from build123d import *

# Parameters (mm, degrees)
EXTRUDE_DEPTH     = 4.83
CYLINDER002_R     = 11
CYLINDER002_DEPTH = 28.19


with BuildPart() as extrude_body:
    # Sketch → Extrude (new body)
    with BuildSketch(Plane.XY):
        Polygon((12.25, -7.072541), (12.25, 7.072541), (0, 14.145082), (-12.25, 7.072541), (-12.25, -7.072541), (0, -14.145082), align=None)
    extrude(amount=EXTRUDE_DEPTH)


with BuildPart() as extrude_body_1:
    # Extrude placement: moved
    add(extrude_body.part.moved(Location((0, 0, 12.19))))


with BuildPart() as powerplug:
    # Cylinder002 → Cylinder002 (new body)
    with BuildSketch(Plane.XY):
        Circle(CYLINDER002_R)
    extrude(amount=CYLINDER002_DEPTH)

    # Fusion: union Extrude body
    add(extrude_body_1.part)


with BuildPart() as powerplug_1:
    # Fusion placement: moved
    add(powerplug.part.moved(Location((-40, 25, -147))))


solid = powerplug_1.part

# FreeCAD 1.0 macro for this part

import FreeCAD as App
import Part
import Sketcher
from FreeCAD import Vector
Q = App.Units.Quantity


def add_polygon(sketch, points):
    """Adds a closed chain of lines whose ends are joined by coincident constraints."""
    first, n = sketch.GeometryCount, len(points)
    for a, b in zip(points, points[1:] + points[:1]):
        sketch.addGeometry(Part.LineSegment(App.Vector(*a, 0), App.Vector(*b, 0)), False)
    for i in range(n):
        sketch.addConstraint(Sketcher.Constraint("Coincident", first + i, 2, first + (i + 1) % n, 1))

doc = App.newDocument("Part")
body = doc.addObject("PartDesign::Body", "Body")

# Sketch on XY plane
sketch1 = body.newObject("Sketcher::SketchObject", "Sketch")
sketch1.AttachmentSupport = (doc.getObject("XY_Plane"), [""])
sketch1.MapMode = "FlatFace"
add_polygon(sketch1, [(12, -7), (12, 7), (0, 14), (-12, 7), (-12, -7), (0, -14)])  # lines 0-5
sketch1.addConstraint(Sketcher.Constraint("Vertical", 0))
sketch1.addConstraint(Sketcher.Constraint("Vertical", 3))
sketch1.addConstraint(Sketcher.Constraint("Symmetric", 0, 2, 3, 2, -1, 1))
sketch1.addConstraint(Sketcher.Constraint("Symmetric", 1, 2, 4, 2, -1, 1))
sketch1.addConstraint(Sketcher.Constraint("PointOnObject", 1, 2, -2))
sketch1.addConstraint(Sketcher.Constraint("Parallel", 2, 5))
sketch1.addConstraint(Sketcher.Constraint("Horizontal", 0, 2, 2, 2))
sketch1.addConstraint(Sketcher.Constraint("Angle", 1, Q("149.999999 deg")))
sketch1.addConstraint(Sketcher.Constraint("DistanceX", 2, 2, 0, 2, 24.5))
sketch1.addConstraint(Sketcher.Constraint("DistanceY", 0, 1, 0, 2, 14.145082))
pad1 = body.newObject("PartDesign::Pad", "Pad")
pad1.Profile = sketch1
pad1.Length = 4.83
body2 = doc.addObject("PartDesign::Body", "Body001")
doc.recompute()

body.Placement = App.Placement(Vector(0, 0, 12.19), App.Rotation(Vector(0, 0, 1), 0))
boolean = body2.newObject("PartDesign::Boolean", "Boolean")
boolean.Type = "Fuse"
boolean.addObjects([body])
body3 = doc.addObject("PartDesign::Body", "Body002")

# Sketch on XY plane
sketch2 = body3.newObject("Sketcher::SketchObject", "Sketch001")
sketch2.AttachmentSupport = (doc.getObject("XY_Plane002"), [""])
sketch2.MapMode = "FlatFace"
sketch2.addGeometry(Part.Circle(Vector(0, 0, 0), Vector(0, 0, 1), 11), False)
sketch2.addConstraint(Sketcher.Constraint("Coincident", 0, 3, -1, 1))
sketch2.addConstraint(Sketcher.Constraint("Diameter", 0, 22.0))
pad2 = body3.newObject("PartDesign::Pad", "Pad001")
pad2.Profile = sketch2
pad2.Length = 28.19
doc.recompute()

boolean2 = body3.newObject("PartDesign::Boolean", "Boolean001")
boolean2.Type = "Fuse"
boolean2.addObjects([body2])
body4 = doc.addObject("PartDesign::Body", "Body003")
doc.recompute()

body3.Placement = App.Placement(Vector(-40, 25, -147), App.Rotation(Vector(0, 0, 1), 0))
boolean3 = body4.newObject("PartDesign::Boolean", "Boolean002")
boolean3.Type = "Fuse"
boolean3.addObjects([body3])

doc.recompute()
